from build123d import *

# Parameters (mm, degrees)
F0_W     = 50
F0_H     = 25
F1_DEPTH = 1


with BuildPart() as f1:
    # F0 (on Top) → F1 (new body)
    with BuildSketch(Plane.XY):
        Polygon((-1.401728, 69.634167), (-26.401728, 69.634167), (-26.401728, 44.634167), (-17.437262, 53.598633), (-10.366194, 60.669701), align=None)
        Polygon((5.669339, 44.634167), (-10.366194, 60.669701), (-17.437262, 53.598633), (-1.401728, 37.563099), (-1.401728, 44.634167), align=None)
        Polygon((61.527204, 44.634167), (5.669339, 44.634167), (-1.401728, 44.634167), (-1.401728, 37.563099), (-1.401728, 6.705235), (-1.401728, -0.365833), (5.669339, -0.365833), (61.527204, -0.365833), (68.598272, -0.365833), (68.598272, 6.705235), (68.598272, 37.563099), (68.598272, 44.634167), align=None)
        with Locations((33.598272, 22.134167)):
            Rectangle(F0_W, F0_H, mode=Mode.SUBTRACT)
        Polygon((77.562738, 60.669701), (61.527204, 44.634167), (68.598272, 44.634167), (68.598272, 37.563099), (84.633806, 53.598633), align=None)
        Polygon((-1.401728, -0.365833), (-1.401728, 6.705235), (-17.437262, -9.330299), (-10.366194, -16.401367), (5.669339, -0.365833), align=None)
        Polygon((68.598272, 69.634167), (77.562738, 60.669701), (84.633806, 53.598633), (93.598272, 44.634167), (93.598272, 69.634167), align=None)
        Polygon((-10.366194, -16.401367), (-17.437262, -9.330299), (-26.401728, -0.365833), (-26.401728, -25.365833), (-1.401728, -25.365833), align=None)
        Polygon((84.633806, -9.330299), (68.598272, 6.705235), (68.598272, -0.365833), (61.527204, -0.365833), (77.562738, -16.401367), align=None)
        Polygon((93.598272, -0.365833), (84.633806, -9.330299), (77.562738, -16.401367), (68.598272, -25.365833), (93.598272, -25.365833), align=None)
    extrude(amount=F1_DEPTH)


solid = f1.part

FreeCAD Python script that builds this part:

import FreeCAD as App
import Part
import Sketcher
from FreeCAD import Vector

doc = App.newDocument("Part")
body = doc.addObject("PartDesign::Body", "Body")

sketch1 = body.newObject("Sketcher::SketchObject", "Sketch")
sketch1.AttachmentSupport = (doc.getObject("XY_Plane"), [""])
sketch1.MapMode = "FlatFace"
sketch1.addGeometry(Part.LineSegment(Vector(-1, 70, 0), Vector(-26, 70, 0)), False)
sketch1.addGeometry(Part.LineSegment(Vector(-26, 70, 0), Vector(-26, 45, 0)), False)
sketch1.addGeometry(Part.LineSegment(Vector(-26, 45, 0), Vector(-17, 54, 0)), False)
sketch1.addGeometry(Part.LineSegment(Vector(-17, 54, 0), Vector(-1, 38, 0)), False)
sketch1.addGeometry(Part.LineSegment(Vector(-1, 38, 0), Vector(-1, 7, 0)), False)
sketch1.addGeometry(Part.LineSegment(Vector(-1, 7, 0), Vector(-17, -9, 0)), False)
sketch1.addGeometry(Part.LineSegment(Vector(-17, -9, 0), Vector(-26, 0, 0)), False)
sketch1.addGeometry(Part.LineSegment(Vector(-26, 0, 0), Vector(-26, -25, 0)), False)
sketch1.addGeometry(Part.LineSegment(Vector(-26, -25, 0), Vector(-1, -25, 0)), False)
sketch1.addGeometry(Part.LineSegment(Vector(-1, -25, 0), Vector(-10, -16, 0)), False)
sketch1.addGeometry(Part.LineSegment(Vector(-10, -16, 0), Vector(6, 0, 0)), False)
sketch1.addGeometry(Part.LineSegment(Vector(6, 0, 0), Vector(62, 0, 0)), False)
sketch1.addGeometry(Part.LineSegment(Vector(62, 0, 0), Vector(78, -16, 0)), False)
sketch1.addGeometry(Part.LineSegment(Vector(78, -16, 0), Vector(69, -25, 0)), False)
sketch1.addGeometry(Part.LineSegment(Vector(69, -25, 0), Vector(94, -25, 0)), False)
sketch1.addGeometry(Part.LineSegment(Vector(94, -25, 0), Vector(94, 0, 0)), False)
sketch1.addGeometry(Part.LineSegment(Vector(94, 0, 0), Vector(85, -9, 0)), False)
sketch1.addGeometry(Part.LineSegment(Vector(85, -9, 0), Vector(69, 7, 0)), False)
sketch1.addGeometry(Part.LineSegment(Vector(69, 7, 0), Vector(69, 38, 0)), False)
sketch1.addGeometry(Part.LineSegment(Vector(69, 38, 0), Vector(85, 54, 0)), False)
sketch1.addGeometry(Part.LineSegment(Vector(85, 54, 0), Vector(94, 45, 0)), False)
sketch1.addGeometry(Part.LineSegment(Vector(94, 45, 0), Vector(94, 70, 0)), False)
sketch1.addGeometry(Part.LineSegment(Vector(94, 70, 0), Vector(69, 70, 0)), False)
sketch1.addGeometry(Part.LineSegment(Vector(69, 70, 0), Vector(78, 61, 0)), False)
sketch1.addGeometry(Part.LineSegment(Vector(78, 61, 0), Vector(62, 45, 0)), False)
sketch1.addGeometry(Part.LineSegment(Vector(62, 45, 0), Vector(6, 45, 0)), False)
sketch1.addGeometry(Part.LineSegment(Vector(6, 45, 0), Vector(-10, 61, 0)), False)
sketch1.addGeometry(Part.LineSegment(Vector(-10, 61, 0), Vector(-1, 70, 0)), False)
sketch1.addGeometry(Part.LineSegment(Vector(59, 10, 0), Vector(9, 10, 0)), False)
sketch1.addGeometry(Part.LineSegment(Vector(9, 10, 0), Vector(9, 35, 0)), False)
sketch1.addGeometry(Part.LineSegment(Vector(9, 35, 0), Vector(59, 35, 0)), False)
sketch1.addGeometry(Part.LineSegment(Vector(59, 35, 0), Vector(59, 10, 0)), False)
sketch1.addConstraint(Sketcher.Constraint("Coincident", 0, 2, 1, 1))
sketch1.addConstraint(Sketcher.Constraint("Coincident", 1, 2, 2, 1))
sketch1.addConstraint(Sketcher.Constraint("Coincident", 2, 2, 3, 1))
sketch1.addConstraint(Sketcher.Constraint("Coincident", 3, 2, 4, 1))
sketch1.addConstraint(Sketcher.Constraint("Coincident", 4, 2, 5, 1))
sketch1.addConstraint(Sketcher.Constraint("Coincident", 5, 2, 6, 1))
sketch1.addConstraint(Sketcher.Constraint("Coincident", 6, 2, 7, 1))
sketch1.addConstraint(Sketcher.Constraint("Coincident", 7, 2, 8, 1))
sketch1.addConstraint(Sketcher.Constraint("Coincident", 8, 2, 9, 1))
sketch1.addConstraint(Sketcher.Constraint("Coincident", 9, 2, 10, 1))
sketch1.addConstraint(Sketcher.Constraint("Coincident", 10, 2, 11, 1))
sketch1.addConstraint(Sketcher.Constraint("Coincident", 11, 2, 12, 1))
sketch1.addConstraint(Sketcher.Constraint("Coincident", 12, 2, 13, 1))
sketch1.addConstraint(Sketcher.Constraint("Coincident", 13, 2, 14, 1))
sketch1.addConstraint(Sketcher.Constraint("Coincident", 14, 2, 15, 1))
sketch1.addConstraint(Sketcher.Constraint("Coincident", 15, 2, 16, 1))
sketch1.addConstraint(Sketcher.Constraint("Coincident", 16, 2, 17, 1))
sketch1.addConstraint(Sketcher.Constraint("Coincident", 17, 2, 18, 1))
sketch1.addConstraint(Sketcher.Constraint("Coincident", 18, 2, 19, 1))
sketch1.addConstraint(Sketcher.Constraint("Coincident", 19, 2, 20, 1))
sketch1.addConstraint(Sketcher.Constraint("Coincident", 20, 2, 21, 1))
sketch1.addConstraint(Sketcher.Constraint("Coincident", 21, 2, 22, 1))
sketch1.addConstraint(Sketcher.Constraint("Coincident", 22, 2, 23, 1))
sketch1.addConstraint(Sketcher.Constraint("Coincident", 23, 2, 24, 1))
sketch1.addConstraint(Sketcher.Constraint("Coincident", 24, 2, 25, 1))
sketch1.addConstraint(Sketcher.Constraint("Coincident", 25, 2, 26, 1))
sketch1.addConstraint(Sketcher.Constraint("Coincident", 26, 2, 27, 1))
sketch1.addConstraint(Sketcher.Constraint("Coincident", 27, 2, 0, 1))
sketch1.addConstraint(Sketcher.Constraint("Coincident", 28, 2, 29, 1))
sketch1.addConstraint(Sketcher.Constraint("Coincident", 29, 2, 30, 1))
sketch1.addConstraint(Sketcher.Constraint("Coincident", 30, 2, 31, 1))
sketch1.addConstraint(Sketcher.Constraint("Coincident", 31, 2, 28, 1))
sketch1.addConstraint(Sketcher.Constraint("Horizontal", 0))
sketch1.addConstraint(Sketcher.Constraint("Vertical", 1))
sketch1.addConstraint(Sketcher.Constraint("Vertical", 4))
sketch1.addConstraint(Sketcher.Constraint("Vertical", 7))
sketch1.addConstraint(Sketcher.Constraint("Horizontal", 8))
sketch1.addConstraint(Sketcher.Constraint("Horizontal", 11))
sketch1.addConstraint(Sketcher.Constraint("Horizontal", 14))
sketch1.addConstraint(Sketcher.Constraint("Vertical", 15))
sketch1.addConstraint(Sketcher.Constraint("Vertical", 18))
sketch1.addConstraint(Sketcher.Constraint("Vertical", 21))
sketch1.addConstraint(Sketcher.Constraint("Horizontal", 22))
sketch1.addConstraint(Sketcher.Constraint("Horizontal", 25))
sketch1.addConstraint(Sketcher.Constraint("Horizontal", 28))
sketch1.addConstraint(Sketcher.Constraint("Vertical", 29))
sketch1.addConstraint(Sketcher.Constraint("Horizontal", 30))
sketch1.addConstraint(Sketcher.Constraint("Vertical", 31))
sketch1.addConstraint(Sketcher.Constraint("Perpendicular", 2, 3))
sketch1.addConstraint(Sketcher.Constraint("Perpendicular", 3, 5))
sketch1.addConstraint(Sketcher.Constraint("Perpendicular", 5, 6))
sketch1.addConstraint(Sketcher.Constraint("Parallel", 6, 9))
sketch1.addConstraint(Sketcher.Constraint("Perpendicular", 9, 10))
sketch1.addConstraint(Sketcher.Constraint("Perpendicular", 10, 12))
sketch1.addConstraint(Sketcher.Constraint("Perpendicular", 12, 13))
sketch1.addConstraint(Sketcher.Constraint("Parallel", 13, 16))
sketch1.addConstraint(Sketcher.Constraint("Perpendicular", 16, 17))
sketch1.addConstraint(Sketcher.Constraint("Perpendicular", 17, 19))
sketch1.addConstraint(Sketcher.Constraint("Perpendicular", 19, 20))
sketch1.addConstraint(Sketcher.Constraint("Parallel", 20, 23))
sketch1.addConstraint(Sketcher.Constraint("Perpendicular", 23, 24))
sketch1.addConstraint(Sketcher.Constraint("Perpendicular", 24, 26))
sketch1.addConstraint(Sketcher.Constraint("Perpendicular", 26, 27))
sketch1.addConstraint(Sketcher.Constraint("Horizontal", 6, 2, 10, 2))
sketch1.addConstraint(Sketcher.Constraint("Horizontal", 9, 2, 12, 2))
sketch1.addConstraint(Sketcher.Constraint("Horizontal", 8, 2, 13, 2))
sketch1.addConstraint(Sketcher.Constraint("Horizontal", 11, 2, 15, 2))
sketch1.addConstraint(Sketcher.Constraint("Horizontal", 5, 2, 16, 2))
sketch1.addConstraint(Sketcher.Constraint("Horizontal", 4, 2, 17, 2))
sketch1.addConstraint(Sketcher.Constraint("Horizontal", 3, 2, 18, 2))
sketch1.addConstraint(Sketcher.Constraint("Horizontal", 2, 2, 19, 2))
sketch1.addConstraint(Sketcher.Constraint("Horizontal", 1, 2, 20, 2))
sketch1.addConstraint(Sketcher.Constraint("Horizontal", 0, 2, 21, 2))
sketch1.addConstraint(Sketcher.Constraint("Horizontal", 20, 2, 24, 2))
sketch1.addConstraint(Sketcher.Constraint("Horizontal", 23, 2, 26, 2))
sketch1.addConstraint(Sketcher.Constraint("Vertical", 2, 2, 5, 2))
sketch1.addConstraint(Sketcher.Constraint("Vertical", 1, 2, 6, 2))
sketch1.addConstraint(Sketcher.Constraint("Vertical", 4, 2, 8, 2))
sketch1.addConstraint(Sketcher.Constraint("Vertical", 13, 2, 17, 2))
sketch1.addConstraint(Sketcher.Constraint("Vertical", 16, 2, 19, 2))
sketch1.addConstraint(Sketcher.Constraint("Vertical", 18, 2, 22, 2))
sketch1.addConstraint(Sketcher.Constraint("Vertical", 12, 2, 23, 2))
sketch1.addConstraint(Sketcher.Constraint("Vertical", 11, 2, 24, 2))
sketch1.addConstraint(Sketcher.Constraint("Vertical", 10, 2, 25, 2))
sketch1.addConstraint(Sketcher.Constraint("Equal", 22, 1))
sketch1.addConstraint(Sketcher.Constraint("Equal", 21, 29))
sketch1.addConstraint(Sketcher.Constraint("Equal", 6, 9))
sketch1.addConstraint(Sketcher.Constraint("DistanceX", 0, 2, 0, 1, 25.0))
sketch1.addConstraint(Sketcher.Constraint("DistanceX", 28, 2, 28, 1, 50.0))
sketch1.addConstraint(Sketcher.Constraint("DistanceY", 6, 2, 1, 2, 45.0))
sketch1.addConstraint(Sketcher.Constraint("DistanceX", 8, 2, 13, 2, 70.0))
sketch1.addConstraint(Sketcher.Constraint("DistanceX", 4, 2, 28, 2, 10.0))
sketch1.addConstraint(Sketcher.Constraint("DistanceY", 10, 2, 28, 2, 10.0))
sketch1.addConstraint(Sketcher.Constraint("DistanceY", -1, 1, 3, 2, 37.563099))
sketch1.addConstraint(Sketcher.Constraint("DistanceY", 5, 2, -1, 1, 9.330299))
sketch1.addConstraint(Sketcher.Constraint("DistanceX", 3, 2, -1, 1, 1.401728))
pad1 = body.newObject("PartDesign::Pad", "Pad")
pad1.Profile = sketch1
pad1.Length = 1

doc.recompute()
